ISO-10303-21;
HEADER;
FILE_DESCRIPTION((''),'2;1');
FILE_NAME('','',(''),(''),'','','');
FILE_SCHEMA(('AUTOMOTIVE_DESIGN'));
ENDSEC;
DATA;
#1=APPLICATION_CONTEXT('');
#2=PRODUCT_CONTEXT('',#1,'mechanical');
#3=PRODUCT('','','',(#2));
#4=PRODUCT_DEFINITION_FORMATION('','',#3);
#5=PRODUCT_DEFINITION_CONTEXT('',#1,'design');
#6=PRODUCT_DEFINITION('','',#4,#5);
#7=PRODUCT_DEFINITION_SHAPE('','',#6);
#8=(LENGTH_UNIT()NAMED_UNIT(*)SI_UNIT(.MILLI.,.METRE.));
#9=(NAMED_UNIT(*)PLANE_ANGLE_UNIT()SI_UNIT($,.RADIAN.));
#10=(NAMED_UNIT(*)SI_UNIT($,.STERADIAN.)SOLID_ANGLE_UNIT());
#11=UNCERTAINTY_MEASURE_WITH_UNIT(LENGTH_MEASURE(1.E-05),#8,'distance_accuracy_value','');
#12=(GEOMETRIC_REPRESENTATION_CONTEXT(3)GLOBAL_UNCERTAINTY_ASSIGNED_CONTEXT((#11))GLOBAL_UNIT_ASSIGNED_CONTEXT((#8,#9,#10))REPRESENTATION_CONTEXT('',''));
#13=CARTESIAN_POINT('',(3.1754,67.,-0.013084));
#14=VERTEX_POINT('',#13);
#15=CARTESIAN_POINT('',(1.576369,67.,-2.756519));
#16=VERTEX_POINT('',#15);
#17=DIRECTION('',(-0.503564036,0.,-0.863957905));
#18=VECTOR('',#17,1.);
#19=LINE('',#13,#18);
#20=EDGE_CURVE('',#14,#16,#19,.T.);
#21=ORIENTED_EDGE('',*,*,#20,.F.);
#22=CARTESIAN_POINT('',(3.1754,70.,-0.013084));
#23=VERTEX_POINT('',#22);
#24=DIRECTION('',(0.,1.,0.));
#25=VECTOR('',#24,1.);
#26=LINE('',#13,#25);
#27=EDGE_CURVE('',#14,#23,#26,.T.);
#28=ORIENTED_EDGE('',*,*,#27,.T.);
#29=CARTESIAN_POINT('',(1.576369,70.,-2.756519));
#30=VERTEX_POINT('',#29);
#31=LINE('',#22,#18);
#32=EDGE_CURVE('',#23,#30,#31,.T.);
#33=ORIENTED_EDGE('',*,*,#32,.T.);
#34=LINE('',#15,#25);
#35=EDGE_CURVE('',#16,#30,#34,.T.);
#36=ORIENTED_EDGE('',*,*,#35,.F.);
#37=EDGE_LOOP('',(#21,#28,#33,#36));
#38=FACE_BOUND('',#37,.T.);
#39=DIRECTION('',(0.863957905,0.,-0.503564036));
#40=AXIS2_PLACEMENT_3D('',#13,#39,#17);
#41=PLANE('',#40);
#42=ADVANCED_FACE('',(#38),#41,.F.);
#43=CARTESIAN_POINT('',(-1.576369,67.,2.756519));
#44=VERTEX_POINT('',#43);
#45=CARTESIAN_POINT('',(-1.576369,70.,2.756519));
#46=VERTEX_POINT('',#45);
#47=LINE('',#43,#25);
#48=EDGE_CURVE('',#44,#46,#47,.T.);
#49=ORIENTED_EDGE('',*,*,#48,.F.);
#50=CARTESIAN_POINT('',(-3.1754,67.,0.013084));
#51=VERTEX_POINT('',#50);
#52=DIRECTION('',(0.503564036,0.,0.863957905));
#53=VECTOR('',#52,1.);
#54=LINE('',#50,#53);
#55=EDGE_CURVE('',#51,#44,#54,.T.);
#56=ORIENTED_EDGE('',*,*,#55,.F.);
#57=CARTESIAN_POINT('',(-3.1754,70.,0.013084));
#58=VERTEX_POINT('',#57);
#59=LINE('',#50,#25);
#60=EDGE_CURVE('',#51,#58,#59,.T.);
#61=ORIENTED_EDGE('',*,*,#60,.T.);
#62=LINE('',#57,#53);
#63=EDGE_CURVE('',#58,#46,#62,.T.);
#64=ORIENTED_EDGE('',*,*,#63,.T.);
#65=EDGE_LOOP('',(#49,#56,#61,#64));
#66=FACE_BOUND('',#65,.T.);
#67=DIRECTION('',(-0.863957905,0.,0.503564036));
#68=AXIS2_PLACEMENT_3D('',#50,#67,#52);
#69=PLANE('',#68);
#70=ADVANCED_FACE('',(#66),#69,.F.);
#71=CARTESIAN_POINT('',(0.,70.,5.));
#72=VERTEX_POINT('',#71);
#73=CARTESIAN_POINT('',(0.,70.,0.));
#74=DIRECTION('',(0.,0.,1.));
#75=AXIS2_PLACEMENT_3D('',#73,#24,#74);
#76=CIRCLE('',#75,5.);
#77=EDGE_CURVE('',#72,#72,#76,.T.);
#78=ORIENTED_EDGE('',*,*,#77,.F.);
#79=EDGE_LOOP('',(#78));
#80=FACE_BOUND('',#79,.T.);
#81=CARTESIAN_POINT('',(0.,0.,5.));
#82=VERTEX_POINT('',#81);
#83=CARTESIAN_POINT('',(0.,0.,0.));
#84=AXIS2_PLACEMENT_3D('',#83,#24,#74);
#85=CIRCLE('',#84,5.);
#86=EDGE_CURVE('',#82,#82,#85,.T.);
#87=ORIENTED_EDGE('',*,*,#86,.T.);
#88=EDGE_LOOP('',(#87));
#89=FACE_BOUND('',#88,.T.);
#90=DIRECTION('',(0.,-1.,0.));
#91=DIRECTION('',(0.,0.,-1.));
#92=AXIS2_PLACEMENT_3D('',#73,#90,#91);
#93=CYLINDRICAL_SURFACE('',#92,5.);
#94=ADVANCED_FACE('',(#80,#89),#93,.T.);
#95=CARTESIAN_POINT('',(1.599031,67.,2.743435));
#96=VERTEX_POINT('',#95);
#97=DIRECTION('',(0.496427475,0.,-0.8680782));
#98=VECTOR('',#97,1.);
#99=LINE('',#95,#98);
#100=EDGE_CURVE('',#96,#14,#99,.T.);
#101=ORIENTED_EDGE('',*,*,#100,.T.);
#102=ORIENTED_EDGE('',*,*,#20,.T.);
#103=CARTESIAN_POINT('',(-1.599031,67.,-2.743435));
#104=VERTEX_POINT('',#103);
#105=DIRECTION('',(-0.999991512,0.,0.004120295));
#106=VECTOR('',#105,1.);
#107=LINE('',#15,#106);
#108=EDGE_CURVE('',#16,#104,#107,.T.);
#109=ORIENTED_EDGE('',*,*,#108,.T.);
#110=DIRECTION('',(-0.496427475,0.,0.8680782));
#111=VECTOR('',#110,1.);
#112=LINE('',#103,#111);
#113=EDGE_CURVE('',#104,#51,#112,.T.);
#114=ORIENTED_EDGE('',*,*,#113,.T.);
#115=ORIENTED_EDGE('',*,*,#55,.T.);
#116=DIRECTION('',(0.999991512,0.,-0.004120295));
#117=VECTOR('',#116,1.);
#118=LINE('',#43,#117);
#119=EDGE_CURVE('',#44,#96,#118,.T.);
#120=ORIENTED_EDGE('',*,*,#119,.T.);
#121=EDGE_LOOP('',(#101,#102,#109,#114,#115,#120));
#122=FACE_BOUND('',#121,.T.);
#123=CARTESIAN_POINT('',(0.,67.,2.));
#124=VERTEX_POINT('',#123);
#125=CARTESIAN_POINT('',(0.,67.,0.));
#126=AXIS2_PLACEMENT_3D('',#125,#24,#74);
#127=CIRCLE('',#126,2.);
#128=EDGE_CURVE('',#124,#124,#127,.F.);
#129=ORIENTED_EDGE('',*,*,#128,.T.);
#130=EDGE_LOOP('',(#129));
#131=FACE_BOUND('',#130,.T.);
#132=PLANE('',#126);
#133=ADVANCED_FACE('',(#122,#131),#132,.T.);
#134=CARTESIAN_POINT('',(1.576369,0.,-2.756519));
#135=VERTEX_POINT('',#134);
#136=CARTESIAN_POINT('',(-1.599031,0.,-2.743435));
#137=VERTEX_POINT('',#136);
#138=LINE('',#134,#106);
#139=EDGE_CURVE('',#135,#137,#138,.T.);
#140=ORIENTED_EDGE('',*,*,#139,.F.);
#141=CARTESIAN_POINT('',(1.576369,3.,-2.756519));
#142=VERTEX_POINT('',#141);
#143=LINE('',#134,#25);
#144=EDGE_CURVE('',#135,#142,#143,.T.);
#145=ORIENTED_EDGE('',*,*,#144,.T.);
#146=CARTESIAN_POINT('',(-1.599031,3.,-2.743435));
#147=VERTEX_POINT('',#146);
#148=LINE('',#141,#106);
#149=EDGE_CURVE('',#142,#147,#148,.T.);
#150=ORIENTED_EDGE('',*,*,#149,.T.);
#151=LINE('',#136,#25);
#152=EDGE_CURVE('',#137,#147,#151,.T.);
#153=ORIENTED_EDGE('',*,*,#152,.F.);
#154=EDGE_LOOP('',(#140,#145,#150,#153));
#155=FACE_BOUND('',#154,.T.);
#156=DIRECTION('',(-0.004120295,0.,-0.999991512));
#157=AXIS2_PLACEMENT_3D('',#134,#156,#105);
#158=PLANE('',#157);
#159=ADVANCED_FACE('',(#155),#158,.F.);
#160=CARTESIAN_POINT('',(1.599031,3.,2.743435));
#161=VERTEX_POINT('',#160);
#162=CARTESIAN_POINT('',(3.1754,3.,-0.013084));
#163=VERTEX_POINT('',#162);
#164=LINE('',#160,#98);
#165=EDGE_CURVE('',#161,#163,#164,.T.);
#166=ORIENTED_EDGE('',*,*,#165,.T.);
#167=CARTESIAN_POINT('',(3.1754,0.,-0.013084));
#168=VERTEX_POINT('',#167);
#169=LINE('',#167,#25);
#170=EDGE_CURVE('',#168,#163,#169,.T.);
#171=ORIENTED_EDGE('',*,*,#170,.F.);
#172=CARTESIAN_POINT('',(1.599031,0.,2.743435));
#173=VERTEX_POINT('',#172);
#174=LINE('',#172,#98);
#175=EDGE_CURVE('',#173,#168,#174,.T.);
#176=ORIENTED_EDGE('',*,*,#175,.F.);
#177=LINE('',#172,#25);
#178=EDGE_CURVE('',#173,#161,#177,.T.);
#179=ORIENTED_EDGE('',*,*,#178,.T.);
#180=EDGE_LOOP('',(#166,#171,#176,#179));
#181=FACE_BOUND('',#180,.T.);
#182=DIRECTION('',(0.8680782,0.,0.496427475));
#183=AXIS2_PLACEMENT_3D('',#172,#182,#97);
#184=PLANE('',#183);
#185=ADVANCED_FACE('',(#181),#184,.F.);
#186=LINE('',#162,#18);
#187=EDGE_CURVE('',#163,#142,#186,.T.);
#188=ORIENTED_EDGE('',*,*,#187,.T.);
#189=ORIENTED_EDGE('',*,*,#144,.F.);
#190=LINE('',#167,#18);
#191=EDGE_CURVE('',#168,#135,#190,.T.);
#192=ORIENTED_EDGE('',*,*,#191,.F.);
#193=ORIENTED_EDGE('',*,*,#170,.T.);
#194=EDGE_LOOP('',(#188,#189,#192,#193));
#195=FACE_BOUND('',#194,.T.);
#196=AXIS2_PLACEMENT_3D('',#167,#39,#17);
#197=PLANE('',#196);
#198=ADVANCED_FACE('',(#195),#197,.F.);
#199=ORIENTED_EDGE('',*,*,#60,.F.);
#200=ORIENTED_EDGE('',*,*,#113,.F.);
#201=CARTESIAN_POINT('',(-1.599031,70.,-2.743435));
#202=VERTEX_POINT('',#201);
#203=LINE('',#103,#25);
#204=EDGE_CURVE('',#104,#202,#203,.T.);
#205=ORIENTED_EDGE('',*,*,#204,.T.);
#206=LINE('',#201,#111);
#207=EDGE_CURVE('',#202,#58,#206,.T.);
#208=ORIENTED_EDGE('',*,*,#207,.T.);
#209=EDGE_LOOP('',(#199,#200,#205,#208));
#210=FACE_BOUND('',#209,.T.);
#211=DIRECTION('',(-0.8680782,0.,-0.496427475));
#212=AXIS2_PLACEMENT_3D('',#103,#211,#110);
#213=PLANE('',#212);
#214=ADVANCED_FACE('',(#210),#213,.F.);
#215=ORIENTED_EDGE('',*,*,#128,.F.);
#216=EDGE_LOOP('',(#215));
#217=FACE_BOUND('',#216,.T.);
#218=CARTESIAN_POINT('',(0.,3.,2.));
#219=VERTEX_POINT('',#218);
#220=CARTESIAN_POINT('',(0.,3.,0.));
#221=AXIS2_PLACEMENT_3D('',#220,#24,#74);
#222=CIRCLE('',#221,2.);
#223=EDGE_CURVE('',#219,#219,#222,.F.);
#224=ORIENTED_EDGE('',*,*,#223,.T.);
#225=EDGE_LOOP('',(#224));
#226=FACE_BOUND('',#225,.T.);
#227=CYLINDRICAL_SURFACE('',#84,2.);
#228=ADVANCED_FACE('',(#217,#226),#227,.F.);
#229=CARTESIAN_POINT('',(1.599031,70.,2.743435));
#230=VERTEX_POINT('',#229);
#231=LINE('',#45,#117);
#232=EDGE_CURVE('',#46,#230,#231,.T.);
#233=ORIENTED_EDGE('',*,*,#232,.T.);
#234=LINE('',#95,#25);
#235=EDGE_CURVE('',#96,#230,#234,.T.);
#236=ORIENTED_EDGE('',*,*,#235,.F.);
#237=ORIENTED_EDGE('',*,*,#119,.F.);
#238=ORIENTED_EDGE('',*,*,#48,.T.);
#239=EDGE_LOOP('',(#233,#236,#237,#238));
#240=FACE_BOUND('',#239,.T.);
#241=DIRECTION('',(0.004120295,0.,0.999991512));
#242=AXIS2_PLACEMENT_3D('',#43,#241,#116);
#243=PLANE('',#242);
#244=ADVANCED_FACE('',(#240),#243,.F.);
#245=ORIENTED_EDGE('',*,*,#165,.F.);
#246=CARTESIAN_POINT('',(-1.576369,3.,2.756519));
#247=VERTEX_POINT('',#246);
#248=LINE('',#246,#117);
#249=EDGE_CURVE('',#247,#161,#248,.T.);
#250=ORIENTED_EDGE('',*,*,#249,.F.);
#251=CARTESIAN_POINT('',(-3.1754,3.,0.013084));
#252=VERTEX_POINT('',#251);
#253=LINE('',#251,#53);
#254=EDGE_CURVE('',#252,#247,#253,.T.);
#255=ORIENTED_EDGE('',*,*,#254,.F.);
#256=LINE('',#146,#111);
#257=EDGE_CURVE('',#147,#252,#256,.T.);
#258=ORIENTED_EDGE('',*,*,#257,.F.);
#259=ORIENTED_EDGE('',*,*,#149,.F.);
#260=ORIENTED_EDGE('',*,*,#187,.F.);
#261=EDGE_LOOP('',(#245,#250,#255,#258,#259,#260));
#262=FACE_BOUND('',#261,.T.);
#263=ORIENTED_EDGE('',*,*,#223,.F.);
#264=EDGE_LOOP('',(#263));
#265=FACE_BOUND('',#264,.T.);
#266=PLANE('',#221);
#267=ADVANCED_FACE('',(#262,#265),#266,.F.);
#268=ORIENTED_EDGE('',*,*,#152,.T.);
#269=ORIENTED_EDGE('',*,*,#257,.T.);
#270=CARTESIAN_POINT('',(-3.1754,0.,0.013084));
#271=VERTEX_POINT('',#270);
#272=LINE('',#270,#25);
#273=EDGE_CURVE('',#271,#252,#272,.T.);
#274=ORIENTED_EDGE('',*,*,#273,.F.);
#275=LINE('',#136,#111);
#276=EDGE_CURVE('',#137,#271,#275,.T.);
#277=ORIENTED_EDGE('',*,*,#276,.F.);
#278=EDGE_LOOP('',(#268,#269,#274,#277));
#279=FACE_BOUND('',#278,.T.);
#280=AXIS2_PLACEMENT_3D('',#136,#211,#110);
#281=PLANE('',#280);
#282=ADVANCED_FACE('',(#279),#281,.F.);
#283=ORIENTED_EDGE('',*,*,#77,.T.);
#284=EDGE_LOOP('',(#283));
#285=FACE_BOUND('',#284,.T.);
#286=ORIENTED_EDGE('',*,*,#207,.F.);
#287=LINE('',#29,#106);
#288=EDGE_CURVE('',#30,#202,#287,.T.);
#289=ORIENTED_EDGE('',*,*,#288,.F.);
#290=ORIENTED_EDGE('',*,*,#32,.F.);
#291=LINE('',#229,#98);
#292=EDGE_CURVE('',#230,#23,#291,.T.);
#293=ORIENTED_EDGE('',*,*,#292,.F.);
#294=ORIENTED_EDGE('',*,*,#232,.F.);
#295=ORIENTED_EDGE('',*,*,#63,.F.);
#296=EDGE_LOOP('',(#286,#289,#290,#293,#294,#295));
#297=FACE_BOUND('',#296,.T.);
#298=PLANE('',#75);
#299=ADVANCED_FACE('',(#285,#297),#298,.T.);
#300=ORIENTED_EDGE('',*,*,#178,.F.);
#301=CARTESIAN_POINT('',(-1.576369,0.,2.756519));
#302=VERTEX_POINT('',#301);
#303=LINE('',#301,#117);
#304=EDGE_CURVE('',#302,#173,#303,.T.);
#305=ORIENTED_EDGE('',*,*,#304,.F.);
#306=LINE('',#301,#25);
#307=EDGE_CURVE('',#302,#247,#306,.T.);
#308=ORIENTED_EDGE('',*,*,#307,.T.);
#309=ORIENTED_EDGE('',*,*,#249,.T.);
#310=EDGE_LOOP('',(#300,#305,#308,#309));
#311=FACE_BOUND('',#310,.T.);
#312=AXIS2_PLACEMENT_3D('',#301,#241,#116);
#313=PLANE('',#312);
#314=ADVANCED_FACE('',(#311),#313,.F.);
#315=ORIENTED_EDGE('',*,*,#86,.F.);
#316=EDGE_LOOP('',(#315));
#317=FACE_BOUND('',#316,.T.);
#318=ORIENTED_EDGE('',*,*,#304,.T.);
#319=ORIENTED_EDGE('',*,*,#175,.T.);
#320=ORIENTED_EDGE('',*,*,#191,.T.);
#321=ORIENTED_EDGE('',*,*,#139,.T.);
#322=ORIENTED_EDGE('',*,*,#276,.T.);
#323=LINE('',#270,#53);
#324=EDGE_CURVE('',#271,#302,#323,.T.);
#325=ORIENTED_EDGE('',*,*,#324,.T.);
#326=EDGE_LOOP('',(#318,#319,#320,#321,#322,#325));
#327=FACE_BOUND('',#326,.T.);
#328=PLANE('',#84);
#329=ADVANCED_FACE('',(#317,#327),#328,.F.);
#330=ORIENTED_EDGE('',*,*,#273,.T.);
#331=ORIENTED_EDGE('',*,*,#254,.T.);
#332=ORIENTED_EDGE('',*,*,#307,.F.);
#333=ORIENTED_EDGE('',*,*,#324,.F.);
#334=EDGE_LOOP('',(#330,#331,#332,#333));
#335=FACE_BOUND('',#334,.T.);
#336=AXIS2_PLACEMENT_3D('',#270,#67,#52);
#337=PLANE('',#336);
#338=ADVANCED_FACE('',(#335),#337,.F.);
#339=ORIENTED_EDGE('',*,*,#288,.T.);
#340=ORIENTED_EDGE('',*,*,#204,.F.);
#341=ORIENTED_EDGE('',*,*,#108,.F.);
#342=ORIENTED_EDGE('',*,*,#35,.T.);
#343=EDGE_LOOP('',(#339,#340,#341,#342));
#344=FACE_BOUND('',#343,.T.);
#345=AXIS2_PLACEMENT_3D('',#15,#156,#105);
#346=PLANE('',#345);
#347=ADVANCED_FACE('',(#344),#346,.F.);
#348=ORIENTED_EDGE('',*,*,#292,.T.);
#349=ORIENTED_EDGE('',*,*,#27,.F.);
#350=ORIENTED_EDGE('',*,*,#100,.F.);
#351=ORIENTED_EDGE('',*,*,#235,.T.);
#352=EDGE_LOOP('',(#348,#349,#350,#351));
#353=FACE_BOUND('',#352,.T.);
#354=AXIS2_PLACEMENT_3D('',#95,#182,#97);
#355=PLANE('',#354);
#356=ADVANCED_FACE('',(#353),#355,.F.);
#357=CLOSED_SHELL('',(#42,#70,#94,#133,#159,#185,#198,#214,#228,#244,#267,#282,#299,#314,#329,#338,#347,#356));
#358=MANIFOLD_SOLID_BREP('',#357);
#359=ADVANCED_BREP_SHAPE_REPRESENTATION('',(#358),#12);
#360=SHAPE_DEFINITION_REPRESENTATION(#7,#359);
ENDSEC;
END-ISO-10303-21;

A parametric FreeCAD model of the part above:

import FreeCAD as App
import Part
import Sketcher

V = App.Vector


def add_polygon(sketch, points):
    """Adds a closed chain of lines whose ends are joined by coincident constraints."""
    first, n = sketch.GeometryCount, len(points)
    for a, b in zip(points, points[1:] + points[:1]):
        sketch.addGeometry(Part.LineSegment(App.Vector(*a, 0), App.Vector(*b, 0)), False)
    for i in range(n):
        sketch.addConstraint(Sketcher.Constraint("Coincident", first + i, 2, first + (i + 1) % n, 1))

doc = App.newDocument("Part")
body = doc.addObject("PartDesign::Body", "Body")

# Sketch on XZ plane
sketch1 = doc.addObject("Sketcher::SketchObject", "Sketch")
body.addObject(sketch1)
sketch1.AttachmentSupport = (doc.XZ_Plane, [""])
sketch1.MapMode = "FlatFace"
sketch1.addGeometry(Part.Circle(V(0, 0, 0), V(0, 0, 1), 5), False)
sketch1.addConstraint(Sketcher.Constraint("Coincident", 0, 3, -1, 1))
sketch1.addConstraint(Sketcher.Constraint("Diameter", 0, 10.0))
pad1 = doc.addObject("PartDesign::Pad", "Pad")
body.addObject(pad1)
pad1.Profile = sketch1
pad1.Length = 70
pad1.Reversed = True

# Sketch on XZ plane
sketch2 = doc.addObject("Sketcher::SketchObject", "Sketch001")
body.addObject(sketch2)
sketch2.AttachmentSupport = (doc.XZ_Plane, [""])
sketch2.MapMode = "FlatFace"
sketch2.AttachmentOffset = App.Placement(V(0, 0, -70), App.Rotation())
sketch2.addGeometry(Part.Circle(V(0, 0, 0), V(0, 0, 1), 2), False)
sketch2.addConstraint(Sketcher.Constraint("Coincident", 0, 3, -1, 1))
sketch2.addConstraint(Sketcher.Constraint("Diameter", 0, 4.0))
pocket1 = doc.addObject("PartDesign::Pocket", "Pocket")
body.addObject(pocket1)
pocket1.Profile = sketch2
pocket1.Type = "ThroughAll"
pocket1.Reversed = True

# Sketch on XZ plane
sketch3 = doc.addObject("Sketcher::SketchObject", "Sketch002")
body.addObject(sketch3)
sketch3.AttachmentSupport = (doc.XZ_Plane, [""])
sketch3.MapMode = "FlatFace"
sketch3.AttachmentOffset = App.Placement(V(0, 0, -70), App.Rotation())
add_polygon(sketch3, [(1.6, 2.7), (3.2, 0), (1.6, -2.8), (-1.6, -2.7), (-3.2, 0), (-1.6, 2.8)])  # lines 0-5
sketch3.addConstraint(Sketcher.Constraint("Symmetric", 0, 2, 3, 2, -1, 1))
sketch3.addConstraint(Sketcher.Constraint("Symmetric", 1, 2, 4, 2, -1, 1))
sketch3.addConstraint(Sketcher.Constraint("Symmetric", 2, 2, 5, 2, -1, 1))
sketch3.addConstraint(Sketcher.Constraint("Equal", 0, 1))
sketch3.addConstraint(Sketcher.Constraint("Equal", 1, 2))
sketch3.addConstraint(Sketcher.Constraint("DistanceX", -1, 1, 0, 2, 3.1754))
sketch3.addConstraint(Sketcher.Constraint("DistanceX", 2, 2, 1, 2, 3.1754))
sketch3.addConstraint(Sketcher.Constraint("DistanceX", -1, 1, 1, 2, 1.576369))
sketch3.addConstraint(Sketcher.Constraint("DistanceY", 1, 2, -1, 1, 2.756519))
pocket2 = doc.addObject("PartDesign::Pocket", "Pocket001")
body.addObject(pocket2)
pocket2.Profile = sketch3
pocket2.Length = 3
pocket2.Reversed = True
doc.recompute()

linearpattern = doc.addObject("PartDesign::LinearPattern", "LinearPattern")
body.addObject(linearpattern)
linearpattern.Originals = [pocket2]
linearpattern.Direction = (doc.Y_Axis, [""])
linearpattern.Mode = "offset"
linearpattern.Offset = 67
linearpattern.Occurrences = 2
linearpattern.Reversed = True
body.Tip = linearpattern

doc.recompute()
